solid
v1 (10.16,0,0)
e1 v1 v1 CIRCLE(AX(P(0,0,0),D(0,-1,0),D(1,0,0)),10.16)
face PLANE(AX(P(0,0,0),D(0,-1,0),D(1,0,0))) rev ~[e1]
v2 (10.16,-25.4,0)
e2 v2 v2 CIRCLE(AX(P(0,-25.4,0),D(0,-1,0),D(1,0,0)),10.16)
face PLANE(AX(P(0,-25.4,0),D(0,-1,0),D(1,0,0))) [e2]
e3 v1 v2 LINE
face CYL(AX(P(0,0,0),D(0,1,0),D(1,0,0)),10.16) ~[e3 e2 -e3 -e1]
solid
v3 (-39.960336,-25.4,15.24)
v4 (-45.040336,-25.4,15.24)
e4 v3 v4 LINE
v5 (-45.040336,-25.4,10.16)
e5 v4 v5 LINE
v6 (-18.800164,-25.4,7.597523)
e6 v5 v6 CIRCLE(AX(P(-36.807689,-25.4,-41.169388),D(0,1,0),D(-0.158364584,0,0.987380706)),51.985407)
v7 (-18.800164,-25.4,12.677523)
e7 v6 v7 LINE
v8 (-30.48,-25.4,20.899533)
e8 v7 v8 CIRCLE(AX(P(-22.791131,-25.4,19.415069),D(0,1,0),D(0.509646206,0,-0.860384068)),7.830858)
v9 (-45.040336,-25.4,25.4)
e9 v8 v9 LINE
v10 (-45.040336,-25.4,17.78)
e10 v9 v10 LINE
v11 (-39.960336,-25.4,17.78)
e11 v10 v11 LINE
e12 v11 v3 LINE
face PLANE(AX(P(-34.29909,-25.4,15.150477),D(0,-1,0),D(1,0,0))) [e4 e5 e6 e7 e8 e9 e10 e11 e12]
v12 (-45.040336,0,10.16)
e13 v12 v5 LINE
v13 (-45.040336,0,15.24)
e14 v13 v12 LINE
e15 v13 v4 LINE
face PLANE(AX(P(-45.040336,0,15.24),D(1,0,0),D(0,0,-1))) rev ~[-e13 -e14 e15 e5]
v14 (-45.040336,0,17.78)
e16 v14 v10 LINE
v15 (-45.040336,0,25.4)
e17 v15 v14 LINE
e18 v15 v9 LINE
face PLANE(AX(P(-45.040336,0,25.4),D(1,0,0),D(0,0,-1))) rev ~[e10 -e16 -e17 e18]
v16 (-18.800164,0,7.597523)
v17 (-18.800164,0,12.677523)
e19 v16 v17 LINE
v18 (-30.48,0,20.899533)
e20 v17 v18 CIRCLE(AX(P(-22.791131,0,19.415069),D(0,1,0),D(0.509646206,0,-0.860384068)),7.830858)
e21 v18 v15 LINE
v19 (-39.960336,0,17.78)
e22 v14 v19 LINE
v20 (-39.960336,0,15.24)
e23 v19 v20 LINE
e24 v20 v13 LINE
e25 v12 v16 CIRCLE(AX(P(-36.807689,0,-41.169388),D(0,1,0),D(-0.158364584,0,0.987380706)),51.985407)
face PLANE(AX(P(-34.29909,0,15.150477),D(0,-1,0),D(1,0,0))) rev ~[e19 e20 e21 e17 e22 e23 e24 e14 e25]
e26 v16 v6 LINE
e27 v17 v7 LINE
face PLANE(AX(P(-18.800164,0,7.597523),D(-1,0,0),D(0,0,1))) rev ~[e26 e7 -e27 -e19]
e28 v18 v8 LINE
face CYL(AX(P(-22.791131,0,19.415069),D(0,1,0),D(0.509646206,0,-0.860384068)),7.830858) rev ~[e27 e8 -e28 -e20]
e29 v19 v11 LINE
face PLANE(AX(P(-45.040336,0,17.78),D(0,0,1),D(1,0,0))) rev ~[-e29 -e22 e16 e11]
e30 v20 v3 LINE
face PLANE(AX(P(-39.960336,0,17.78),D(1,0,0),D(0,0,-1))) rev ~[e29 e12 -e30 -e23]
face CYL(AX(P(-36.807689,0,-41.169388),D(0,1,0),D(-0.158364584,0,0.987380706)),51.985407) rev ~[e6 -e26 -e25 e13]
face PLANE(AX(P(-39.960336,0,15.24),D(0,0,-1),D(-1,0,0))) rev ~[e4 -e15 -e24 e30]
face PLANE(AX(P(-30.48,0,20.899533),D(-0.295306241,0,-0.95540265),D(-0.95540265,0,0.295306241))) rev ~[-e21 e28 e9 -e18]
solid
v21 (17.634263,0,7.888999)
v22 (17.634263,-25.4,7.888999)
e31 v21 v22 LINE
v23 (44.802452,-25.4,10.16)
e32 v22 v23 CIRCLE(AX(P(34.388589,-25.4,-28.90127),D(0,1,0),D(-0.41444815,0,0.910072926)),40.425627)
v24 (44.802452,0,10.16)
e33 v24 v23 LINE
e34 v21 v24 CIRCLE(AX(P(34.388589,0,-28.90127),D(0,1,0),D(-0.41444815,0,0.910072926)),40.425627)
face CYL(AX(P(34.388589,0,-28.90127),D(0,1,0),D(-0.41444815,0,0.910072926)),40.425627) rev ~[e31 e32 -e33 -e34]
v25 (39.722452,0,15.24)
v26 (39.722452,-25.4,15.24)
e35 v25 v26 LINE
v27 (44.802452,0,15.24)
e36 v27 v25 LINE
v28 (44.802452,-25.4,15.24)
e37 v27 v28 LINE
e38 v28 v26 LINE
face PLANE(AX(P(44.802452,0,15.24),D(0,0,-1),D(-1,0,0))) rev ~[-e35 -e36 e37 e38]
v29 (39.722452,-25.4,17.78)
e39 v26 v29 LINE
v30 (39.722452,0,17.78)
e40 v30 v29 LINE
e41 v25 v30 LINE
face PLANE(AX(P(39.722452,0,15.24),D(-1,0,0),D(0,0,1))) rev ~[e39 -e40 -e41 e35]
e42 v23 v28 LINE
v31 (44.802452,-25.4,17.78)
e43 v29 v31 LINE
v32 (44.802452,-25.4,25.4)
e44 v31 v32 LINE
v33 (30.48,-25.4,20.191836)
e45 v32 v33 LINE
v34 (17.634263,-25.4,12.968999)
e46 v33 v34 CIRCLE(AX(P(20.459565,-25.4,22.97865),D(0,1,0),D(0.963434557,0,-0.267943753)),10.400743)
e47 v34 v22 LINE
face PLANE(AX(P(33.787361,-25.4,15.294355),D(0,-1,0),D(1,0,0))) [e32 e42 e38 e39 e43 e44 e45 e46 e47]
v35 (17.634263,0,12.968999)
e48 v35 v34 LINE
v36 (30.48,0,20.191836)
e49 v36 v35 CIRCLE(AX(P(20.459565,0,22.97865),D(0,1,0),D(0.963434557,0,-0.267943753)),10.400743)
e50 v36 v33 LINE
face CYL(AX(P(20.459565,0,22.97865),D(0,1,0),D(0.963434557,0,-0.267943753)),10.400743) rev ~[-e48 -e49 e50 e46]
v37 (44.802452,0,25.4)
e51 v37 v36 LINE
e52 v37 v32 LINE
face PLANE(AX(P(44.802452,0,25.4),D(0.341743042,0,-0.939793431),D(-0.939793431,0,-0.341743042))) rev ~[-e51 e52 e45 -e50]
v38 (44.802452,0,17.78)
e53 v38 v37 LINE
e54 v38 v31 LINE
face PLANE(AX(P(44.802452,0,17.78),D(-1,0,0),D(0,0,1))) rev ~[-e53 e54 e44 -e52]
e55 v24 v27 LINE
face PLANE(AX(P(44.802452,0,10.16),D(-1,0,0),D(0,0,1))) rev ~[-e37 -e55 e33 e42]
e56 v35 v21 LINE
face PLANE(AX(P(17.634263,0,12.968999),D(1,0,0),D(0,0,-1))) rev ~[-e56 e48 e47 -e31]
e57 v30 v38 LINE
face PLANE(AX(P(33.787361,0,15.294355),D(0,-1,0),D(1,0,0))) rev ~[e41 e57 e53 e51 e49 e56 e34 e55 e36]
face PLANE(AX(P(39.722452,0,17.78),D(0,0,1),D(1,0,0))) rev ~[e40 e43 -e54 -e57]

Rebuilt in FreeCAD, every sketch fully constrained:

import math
import FreeCAD as App
import Part
import Sketcher
from FreeCAD import Vector
Q = App.Units.Quantity

doc = App.newDocument("Part")
body = doc.addObject("PartDesign::Body", "Body")
body.AllowCompound = True

sketch1 = body.newObject("Sketcher::SketchObject", "Sketch")
sketch1.AttachmentSupport = (doc.getObject("XZ_Plane"), [""])
sketch1.MapMode = "FlatFace"
sketch1.addGeometry(Part.ArcOfCircle(Part.Circle(Vector(-22.791131, 19.415069, 0), Vector(0, 0, 1), 7.830858), math.radians(169.072543), math.radians(300.640267)), False)
sketch1.addGeometry(Part.LineSegment(Vector(-30.48, 20.899533, 0), Vector(-45.040336, 25.4, 0)), False)
sketch1.addGeometry(Part.LineSegment(Vector(-45.040336, 25.4, 0), Vector(-45.040336, 17.78, 0)), False)
sketch1.addGeometry(Part.LineSegment(Vector(-45.040336, 17.78, 0), Vector(-39.960336, 17.78, 0)), False)
sketch1.addGeometry(Part.LineSegment(Vector(-39.960336, 17.78, 0), Vector(-39.960336, 15.24, 0)), False)
sketch1.addGeometry(Part.LineSegment(Vector(-39.960336, 15.24, 0), Vector(-45.040336, 15.24, 0)), False)
sketch1.addGeometry(Part.LineSegment(Vector(-45.040336, 15.24, 0), Vector(-45.040336, 10.16, 0)), False)
sketch1.addGeometry(Part.ArcOfCircle(Part.Circle(Vector(-36.807689, -41.169388, 0), Vector(0, 0, 1), 51.985407), math.radians(69.732978), math.radians(99.111984)), False)
sketch1.addGeometry(Part.LineSegment(Vector(-18.800164, 7.597523, 0), Vector(-18.800164, 12.677523, 0)), False)
sketch1.addGeometry(Part.LineSegment(Vector(44.802452, 25.4, 0), Vector(30.48, 20.191836, 0)), False)
sketch1.addGeometry(Part.ArcOfCircle(Part.Circle(Vector(20.459565, 22.97865, 0), Vector(0, 0, 1), 10.400743), math.radians(-105.762134), math.radians(-15.541945)), False)
sketch1.addGeometry(Part.LineSegment(Vector(17.634263, 12.968999, 0), Vector(17.634263, 7.888999, 0)), False)
sketch1.addGeometry(Part.ArcOfCircle(Part.Circle(Vector(34.388589, -28.90127, 0), Vector(0, 0, 1), 40.425627), math.radians(75.071974), math.radians(114.484569)), False)
sketch1.addGeometry(Part.LineSegment(Vector(44.802452, 10.16, 0), Vector(44.802452, 15.24, 0)), False)
sketch1.addGeometry(Part.LineSegment(Vector(44.802452, 15.24, 0), Vector(39.722452, 15.24, 0)), False)
sketch1.addGeometry(Part.LineSegment(Vector(39.722452, 15.24, 0), Vector(39.722452, 17.78, 0)), False)
sketch1.addGeometry(Part.LineSegment(Vector(39.722452, 17.78, 0), Vector(44.802452, 17.78, 0)), False)
sketch1.addGeometry(Part.LineSegment(Vector(44.802452, 17.78, 0), Vector(44.802452, 25.4, 0)), False)
sketch1.addGeometry(Part.Circle(Vector(0, 0, 0), Vector(0, 0, 1), 10.16), False)
sketch1.addConstraint(Sketcher.Constraint("Coincident", 0, 1, 1, 1))
sketch1.addConstraint(Sketcher.Constraint("Coincident", 1, 2, 2, 1))
sketch1.addConstraint(Sketcher.Constraint("Coincident", 2, 2, 3, 1))
sketch1.addConstraint(Sketcher.Constraint("Coincident", 3, 2, 4, 1))
sketch1.addConstraint(Sketcher.Constraint("Coincident", 4, 2, 5, 1))
sketch1.addConstraint(Sketcher.Constraint("Coincident", 5, 2, 6, 1))
sketch1.addConstraint(Sketcher.Constraint("Coincident", 6, 2, 7, 2))
sketch1.addConstraint(Sketcher.Constraint("Coincident", 7, 1, 8, 1))
sketch1.addConstraint(Sketcher.Constraint("Coincident", 8, 2, 0, 2))
sketch1.addConstraint(Sketcher.Constraint("Coincident", 9, 2, 10, 2))
sketch1.addConstraint(Sketcher.Constraint("Coincident", 10, 1, 11, 1))
sketch1.addConstraint(Sketcher.Constraint("Coincident", 11, 2, 12, 2))
sketch1.addConstraint(Sketcher.Constraint("Coincident", 12, 1, 13, 1))
sketch1.addConstraint(Sketcher.Constraint("Coincident", 13, 2, 14, 1))
sketch1.addConstraint(Sketcher.Constraint("Coincident", 14, 2, 15, 1))
sketch1.addConstraint(Sketcher.Constraint("Coincident", 15, 2, 16, 1))
sketch1.addConstraint(Sketcher.Constraint("Coincident", 16, 2, 17, 1))
sketch1.addConstraint(Sketcher.Constraint("Coincident", 17, 2, 9, 1))
sketch1.addConstraint(Sketcher.Constraint("Vertical", 2))
sketch1.addConstraint(Sketcher.Constraint("Horizontal", 3))
sketch1.addConstraint(Sketcher.Constraint("Vertical", 4))
sketch1.addConstraint(Sketcher.Constraint("Horizontal", 5))
sketch1.addConstraint(Sketcher.Constraint("Vertical", 6))
sketch1.addConstraint(Sketcher.Constraint("Vertical", 8))
sketch1.addConstraint(Sketcher.Constraint("Vertical", 11))
sketch1.addConstraint(Sketcher.Constraint("Vertical", 13))
sketch1.addConstraint(Sketcher.Constraint("Horizontal", 14))
sketch1.addConstraint(Sketcher.Constraint("Vertical", 15))
sketch1.addConstraint(Sketcher.Constraint("Horizontal", 16))
sketch1.addConstraint(Sketcher.Constraint("Vertical", 17))
sketch1.addConstraint(Sketcher.Constraint("Coincident", 18, 3, -1, 1))
sketch1.addConstraint(Sketcher.Constraint("Horizontal", 6, 2, 12, 1))
sketch1.addConstraint(Sketcher.Constraint("Horizontal", 5, 2, 13, 2))
sketch1.addConstraint(Sketcher.Constraint("Horizontal", 3, 2, 15, 2))
sketch1.addConstraint(Sketcher.Constraint("Horizontal", 1, 2, 17, 2))
sketch1.addConstraint(Sketcher.Constraint("Vertical", 2, 2, 5, 2))
sketch1.addConstraint(Sketcher.Constraint("Vertical", 13, 2, 16, 2))
sketch1.addConstraint(Sketcher.Constraint("Equal", 5, 14))
sketch1.addConstraint(Sketcher.Constraint("Equal", 16, 6))
sketch1.addConstraint(Sketcher.Constraint("Equal", 6, 8))
sketch1.addConstraint(Sketcher.Constraint("Equal", 8, 11))
sketch1.addConstraint(Sketcher.Constraint("Equal", 1, 9))
sketch1.addConstraint(Sketcher.Constraint("Diameter", 18, Q("0.8 in")))
sketch1.addConstraint(Sketcher.Constraint("DistanceX", 3, 1, 3, 2, Q("0.2 in")))
sketch1.addConstraint(Sketcher.Constraint("DistanceY", 2, 2, 2, 1, Q("0.3 in")))
sketch1.addConstraint(Sketcher.Constraint("DistanceY", 4, 2, 4, 1, Q("0.1 in")))
sketch1.addConstraint(Sketcher.Constraint("DistanceY", -1, 1, 1, 2, Q("1 in")))
sketch1.addConstraint(Sketcher.Constraint("Distance", 1, Q("0.6 in")))
sketch1.addConstraint(Sketcher.Constraint("DistanceX", 0, 1, -1, 1, Q("1.2 in")))
sketch1.addConstraint(Sketcher.Constraint("DistanceX", -1, 1, 9, 2, Q("1.2 in")))
sketch1.addConstraint(Sketcher.Constraint("Radius", 0, Q("7.830858 mm")))
sketch1.addConstraint(Sketcher.Constraint("Radius", 7, Q("51.985407 mm")))
sketch1.addConstraint(Sketcher.Constraint("Radius", 10, Q("10.400743 mm")))
sketch1.addConstraint(Sketcher.Constraint("Radius", 12, Q("40.425627 mm")))
sketch1.addConstraint(Sketcher.Constraint("DistanceY", -1, 1, 10, 1, Q("12.968999 mm")))
sketch1.addConstraint(Sketcher.Constraint("DistanceX", 1, 2, 10, 3, Q("65.499901 mm")))
sketch1.addConstraint(Sketcher.Constraint("DistanceX", 0, 3, -1, 1, Q("22.791131 mm")))
sketch1.addConstraint(Sketcher.Constraint("DistanceY", -1, 1, 0, 3, Q("19.415069 mm")))
sketch1.addConstraint(Sketcher.Constraint("DistanceX", 7, 3, -1, 1, Q("36.807689 mm")))
sketch1.addConstraint(Sketcher.Constraint("DistanceY", -1, 1, 10, 3, Q("22.97865 mm")))
pad1 = body.newObject("PartDesign::Pad", "Pad")
pad1.Profile = sketch1
pad1.Length = Q("1 in")

doc.recompute()
